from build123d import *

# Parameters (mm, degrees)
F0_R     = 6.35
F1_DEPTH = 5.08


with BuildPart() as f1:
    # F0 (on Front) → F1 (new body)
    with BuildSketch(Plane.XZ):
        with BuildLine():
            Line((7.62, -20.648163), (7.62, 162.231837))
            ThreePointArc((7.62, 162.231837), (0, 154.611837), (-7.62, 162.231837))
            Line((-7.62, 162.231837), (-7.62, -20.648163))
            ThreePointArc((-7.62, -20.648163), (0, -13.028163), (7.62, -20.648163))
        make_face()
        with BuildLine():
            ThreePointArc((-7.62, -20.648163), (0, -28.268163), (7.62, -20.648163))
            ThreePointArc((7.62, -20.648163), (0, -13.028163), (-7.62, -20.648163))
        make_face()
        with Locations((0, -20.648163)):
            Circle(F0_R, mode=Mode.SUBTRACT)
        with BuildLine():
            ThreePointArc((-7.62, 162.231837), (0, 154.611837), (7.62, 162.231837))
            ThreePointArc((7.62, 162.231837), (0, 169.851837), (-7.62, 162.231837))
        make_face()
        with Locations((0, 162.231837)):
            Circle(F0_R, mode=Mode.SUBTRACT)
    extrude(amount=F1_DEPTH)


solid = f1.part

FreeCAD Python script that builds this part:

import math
import FreeCAD as App
import Part
import Sketcher
from FreeCAD import Vector
Q = App.Units.Quantity

doc = App.newDocument("Part")
body = doc.addObject("PartDesign::Body", "Body")

sketch1 = body.newObject("Sketcher::SketchObject", "Sketch")
sketch1.AttachmentSupport = (doc.getObject("XZ_Plane"), [""])
sketch1.MapMode = "FlatFace"
sketch1.addGeometry(Part.LineSegment(Vector(8, -21, 0), Vector(8, 162, 0)), False)
sketch1.addGeometry(Part.ArcOfCircle(Part.Circle(Vector(0, 162, 0), Vector(0, 0, 1), 8), math.radians(0), math.radians(180)), False)
sketch1.addGeometry(Part.LineSegment(Vector(-8, 162, 0), Vector(-8, -21, 0)), False)
sketch1.addGeometry(Part.ArcOfCircle(Part.Circle(Vector(0, -21, 0), Vector(0, 0, 1), 8), math.radians(180), math.radians(360)), False)
sketch1.addGeometry(Part.Circle(Vector(0, -21, 0), Vector(0, 0, 1), 6), False)
sketch1.addGeometry(Part.Circle(Vector(0, 162, 0), Vector(0, 0, 1), 6), False)
sketch1.addConstraint(Sketcher.Constraint("Tangent", 0, 2, 1, 1))
sketch1.addConstraint(Sketcher.Constraint("Tangent", 1, 2, 2, 1))
sketch1.addConstraint(Sketcher.Constraint("Tangent", 2, 2, 3, 1))
sketch1.addConstraint(Sketcher.Constraint("Tangent", 3, 2, 0, 1))
sketch1.addConstraint(Sketcher.Constraint("Vertical", 0))
sketch1.addConstraint(Sketcher.Constraint("Vertical", 2))
sketch1.addConstraint(Sketcher.Constraint("Coincident", 4, 3, 3, 3))
sketch1.addConstraint(Sketcher.Constraint("Coincident", 5, 3, 1, 3))
sketch1.addConstraint(Sketcher.Constraint("Equal", 4, 5))
sketch1.addConstraint(Sketcher.Constraint("PointOnObject", 1, 3, -2))
sketch1.addConstraint(Sketcher.Constraint("Diameter", 4, Q("0.5 in")))
sketch1.addConstraint(Sketcher.Constraint("Radius", 1, Q("0.3 in")))
sketch1.addConstraint(Sketcher.Constraint("DistanceY", 0, 1, 0, 2, Q("7.2 in")))
sketch1.addConstraint(Sketcher.Constraint("DistanceY", -1, 1, 1, 3, Q("162.231837 mm")))
pad1 = body.newObject("PartDesign::Pad", "Pad")
pad1.Profile = sketch1
pad1.Length = Q("0.2 in")

doc.recompute()
